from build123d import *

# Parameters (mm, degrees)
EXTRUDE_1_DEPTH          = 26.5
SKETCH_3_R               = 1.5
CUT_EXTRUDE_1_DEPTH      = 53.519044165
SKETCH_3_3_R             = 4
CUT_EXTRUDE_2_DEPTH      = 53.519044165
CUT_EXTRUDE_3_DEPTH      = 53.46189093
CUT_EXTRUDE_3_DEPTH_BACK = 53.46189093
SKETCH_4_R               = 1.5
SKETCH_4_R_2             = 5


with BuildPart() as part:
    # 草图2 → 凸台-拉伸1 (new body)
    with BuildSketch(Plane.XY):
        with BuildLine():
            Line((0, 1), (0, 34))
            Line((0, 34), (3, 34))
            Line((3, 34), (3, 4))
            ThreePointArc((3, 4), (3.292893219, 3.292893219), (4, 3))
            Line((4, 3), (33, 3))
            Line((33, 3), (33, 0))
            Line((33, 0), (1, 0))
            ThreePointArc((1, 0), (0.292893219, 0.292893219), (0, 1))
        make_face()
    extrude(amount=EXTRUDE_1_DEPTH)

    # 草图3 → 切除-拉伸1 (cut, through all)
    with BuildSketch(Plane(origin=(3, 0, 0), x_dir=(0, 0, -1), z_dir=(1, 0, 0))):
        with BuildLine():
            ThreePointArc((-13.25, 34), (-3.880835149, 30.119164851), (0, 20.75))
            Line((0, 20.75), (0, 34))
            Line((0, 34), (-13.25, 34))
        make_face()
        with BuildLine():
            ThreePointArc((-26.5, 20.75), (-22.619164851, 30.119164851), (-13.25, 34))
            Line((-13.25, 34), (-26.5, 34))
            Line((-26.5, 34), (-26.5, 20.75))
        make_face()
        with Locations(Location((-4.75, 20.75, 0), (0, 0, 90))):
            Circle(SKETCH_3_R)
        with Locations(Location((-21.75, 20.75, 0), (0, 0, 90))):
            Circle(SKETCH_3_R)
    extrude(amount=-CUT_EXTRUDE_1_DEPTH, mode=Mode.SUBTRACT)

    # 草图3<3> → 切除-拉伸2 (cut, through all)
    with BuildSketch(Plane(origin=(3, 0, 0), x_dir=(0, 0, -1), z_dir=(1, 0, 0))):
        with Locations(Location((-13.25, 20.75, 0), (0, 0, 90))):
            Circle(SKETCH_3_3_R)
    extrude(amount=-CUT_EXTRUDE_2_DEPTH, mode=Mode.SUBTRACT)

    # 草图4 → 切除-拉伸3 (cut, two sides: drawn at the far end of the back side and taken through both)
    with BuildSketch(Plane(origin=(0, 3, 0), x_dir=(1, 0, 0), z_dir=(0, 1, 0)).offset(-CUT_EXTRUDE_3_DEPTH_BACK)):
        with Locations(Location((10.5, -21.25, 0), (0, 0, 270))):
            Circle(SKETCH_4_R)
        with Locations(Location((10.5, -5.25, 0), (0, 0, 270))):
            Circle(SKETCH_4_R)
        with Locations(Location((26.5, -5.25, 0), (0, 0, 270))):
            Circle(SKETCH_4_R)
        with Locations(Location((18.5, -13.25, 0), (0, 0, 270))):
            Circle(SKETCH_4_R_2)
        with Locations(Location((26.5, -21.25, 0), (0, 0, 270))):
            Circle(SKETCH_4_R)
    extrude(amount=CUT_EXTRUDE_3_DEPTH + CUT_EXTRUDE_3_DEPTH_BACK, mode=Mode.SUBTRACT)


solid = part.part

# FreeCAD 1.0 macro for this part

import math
import FreeCAD as App
import Part
import Sketcher
from FreeCAD import Vector

doc = App.newDocument("Part")
body = doc.addObject("PartDesign::Body", "Body")

sketch1 = doc.addObject("Sketcher::SketchObject", "Sketch")
body.addObject(sketch1)
sketch1.AttachmentSupport = (doc.XY_Plane, [""])
sketch1.MapMode = "FlatFace"
sketch1.addGeometry(Part.LineSegment(Vector(0, 34, 0), Vector(0, 1, 0)), False)
sketch1.addGeometry(Part.ArcOfCircle(Part.Circle(Vector(1, 1, 0), Vector(0, 0, 1), 1), math.radians(-180), math.radians(-90)), False)
sketch1.addGeometry(Part.LineSegment(Vector(1, 0, 0), Vector(33, 0, 0)), False)
sketch1.addGeometry(Part.LineSegment(Vector(33, 0, 0), Vector(33, 3, 0)), False)
sketch1.addGeometry(Part.LineSegment(Vector(33, 3, 0), Vector(4, 3, 0)), False)
sketch1.addGeometry(Part.ArcOfCircle(Part.Circle(Vector(4, 4, 0), Vector(0, 0, 1), 1), math.radians(-180), math.radians(-90)), False)
sketch1.addGeometry(Part.LineSegment(Vector(3, 4, 0), Vector(3, 34, 0)), False)
sketch1.addGeometry(Part.LineSegment(Vector(3, 34, 0), Vector(0, 34, 0)), False)
sketch1.addConstraint(Sketcher.Constraint("Tangent", 0, 2, 1, 1))
sketch1.addConstraint(Sketcher.Constraint("Tangent", 1, 2, 2, 1))
sketch1.addConstraint(Sketcher.Constraint("Coincident", 2, 2, 3, 1))
sketch1.addConstraint(Sketcher.Constraint("Coincident", 3, 2, 4, 1))
sketch1.addConstraint(Sketcher.Constraint("Tangent", 4, 2, 5, 2))
sketch1.addConstraint(Sketcher.Constraint("Tangent", 5, 1, 6, 1))
sketch1.addConstraint(Sketcher.Constraint("Coincident", 6, 2, 7, 1))
sketch1.addConstraint(Sketcher.Constraint("Coincident", 7, 2, 0, 1))
sketch1.addConstraint(Sketcher.Constraint("Vertical", 0))
sketch1.addConstraint(Sketcher.Constraint("Horizontal", 2))
sketch1.addConstraint(Sketcher.Constraint("Vertical", 3))
sketch1.addConstraint(Sketcher.Constraint("Horizontal", 4))
sketch1.addConstraint(Sketcher.Constraint("Vertical", 6))
sketch1.addConstraint(Sketcher.Constraint("Horizontal", 7))
sketch1.addConstraint(Sketcher.Constraint("Equal", 1, 5))
sketch1.addConstraint(Sketcher.Constraint("PointOnObject", 0, 2, -2))
sketch1.addConstraint(Sketcher.Constraint("PointOnObject", 1, 2, -1))
sketch1.addConstraint(Sketcher.Constraint("Equal", 7, 3))
sketch1.addConstraint(Sketcher.Constraint("Radius", 1, 1.0))
sketch1.addConstraint(Sketcher.Constraint("DistanceX", 2, 1, 2, 2, 32.0))
sketch1.addConstraint(Sketcher.Constraint("DistanceX", 4, 2, 4, 1, 29.0))
sketch1.addConstraint(Sketcher.Constraint("DistanceY", 0, 2, 0, 1, 33.0))
pad1 = doc.addObject("PartDesign::Pad", "Pad")
body.addObject(pad1)
pad1.Profile = sketch1
pad1.Length = 26.5

sketch2 = doc.addObject("Sketcher::SketchObject", "Sketch001")
body.addObject(sketch2)
sketch2.AttachmentSupport = (doc.YZ_Plane, [""])
sketch2.MapMode = "FlatFace"
sketch2.AttachmentOffset = App.Placement(Vector(0, 0, 3), App.Rotation())
sketch2.addGeometry(Part.ArcOfCircle(Part.Circle(Vector(20.8, 13.2, 0), Vector(0, 0, 1), 13.2), math.radians(-90), math.radians(0)), False)
sketch2.addGeometry(Part.LineSegment(Vector(20.8, 0, 0), Vector(34, 0, 0)), False)
sketch2.addGeometry(Part.LineSegment(Vector(34, 0, 0), Vector(34, 13.2, 0)), False)
sketch2.addGeometry(Part.ArcOfCircle(Part.Circle(Vector(20.8, 13.3, 0), Vector(0, 0, 1), 13.2), math.radians(0), math.radians(90)), False)
sketch2.addGeometry(Part.LineSegment(Vector(34, 13.2, 0), Vector(34, 26.5, 0)), False)
sketch2.addGeometry(Part.LineSegment(Vector(34, 26.5, 0), Vector(20.8, 26.5, 0)), False)
sketch2.addGeometry(Part.Circle(Vector(20.8, 4.8, 0), Vector(0, 0, 1), 1.5), False)
sketch2.addGeometry(Part.Circle(Vector(20.8, 21.8, 0), Vector(0, 0, 1), 1.5), False)
sketch2.addConstraint(Sketcher.Constraint("Tangent", 0, 1, 1, 1))
sketch2.addConstraint(Sketcher.Constraint("Coincident", 1, 2, 2, 1))
sketch2.addConstraint(Sketcher.Constraint("Tangent", 2, 2, 0, 2))
sketch2.addConstraint(Sketcher.Constraint("Tangent", 3, 1, 4, 1))
sketch2.addConstraint(Sketcher.Constraint("Coincident", 4, 2, 5, 1))
sketch2.addConstraint(Sketcher.Constraint("Tangent", 5, 2, 3, 2))
sketch2.addConstraint(Sketcher.Constraint("Horizontal", 1))
sketch2.addConstraint(Sketcher.Constraint("Vertical", 2))
sketch2.addConstraint(Sketcher.Constraint("Vertical", 4))
sketch2.addConstraint(Sketcher.Constraint("Horizontal", 5))
sketch2.addConstraint(Sketcher.Constraint("Coincident", 3, 3, 0, 3))
sketch2.addConstraint(Sketcher.Constraint("Equal", 0, 3))
sketch2.addConstraint(Sketcher.Constraint("Equal", 6, 7))
sketch2.addConstraint(Sketcher.Constraint("PointOnObject", 0, 1, -1))
sketch2.addConstraint(Sketcher.Constraint("Vertical", 3, 3, 6, 3))
sketch2.addConstraint(Sketcher.Constraint("Vertical", 6, 3, 7, 3))
sketch2.addConstraint(Sketcher.Constraint("Diameter", 6, 3.0))
sketch2.addConstraint(Sketcher.Constraint("Radius", 0, 13.25))
sketch2.addConstraint(Sketcher.Constraint("DistanceX", -1, 1, 1, 2, 34.0))
sketch2.addConstraint(Sketcher.Constraint("DistanceY", 6, 3, 7, 3, 17.0))
sketch2.addConstraint(Sketcher.Constraint("DistanceY", 6, 3, 0, 3, 8.5))
pocket1 = doc.addObject("PartDesign::Pocket", "Pocket")
body.addObject(pocket1)
pocket1.Profile = sketch2
pocket1.Type = "ThroughAll"

sketch3 = doc.addObject("Sketcher::SketchObject", "Sketch002")
body.addObject(sketch3)
sketch3.AttachmentSupport = (doc.YZ_Plane, [""])
sketch3.MapMode = "FlatFace"
sketch3.AttachmentOffset = App.Placement(Vector(0, 0, 3), App.Rotation())
sketch3.addGeometry(Part.Circle(Vector(20.8, 13.2, 0), Vector(0, 0, 1), 4), False)
sketch3.addConstraint(Sketcher.Constraint("Diameter", 0, 8.0))
sketch3.addConstraint(Sketcher.Constraint("DistanceX", -1, 1, 0, 3, 20.75))
sketch3.addConstraint(Sketcher.Constraint("DistanceY", -1, 1, 0, 3, 13.25))
pocket2 = doc.addObject("PartDesign::Pocket", "Pocket001")
body.addObject(pocket2)
pocket2.Profile = sketch3
pocket2.Type = "ThroughAll"

sketch4 = doc.addObject("Sketcher::SketchObject", "Sketch003")
body.addObject(sketch4)
sketch4.AttachmentSupport = (doc.XZ_Plane, [""])
sketch4.MapMode = "FlatFace"
sketch4.AttachmentOffset = App.Placement(Vector(0, 0, -3), App.Rotation())
sketch4.addGeometry(Part.Circle(Vector(10.5, 21.2, 0), Vector(0, 0, 1), 1.5), False)
sketch4.addGeometry(Part.Circle(Vector(10.5, 5.2, 0), Vector(0, 0, 1), 1.5), False)
sketch4.addGeometry(Part.Circle(Vector(26.5, 5.2, 0), Vector(0, 0, 1), 1.5), False)
sketch4.addGeometry(Part.Circle(Vector(18.5, 13.2, 0), Vector(0, 0, 1), 5), False)
sketch4.addGeometry(Part.Circle(Vector(26.5, 21.2, 0), Vector(0, 0, 1), 1.5), False)
sketch4.addConstraint(Sketcher.Constraint("Equal", 0, 1))
sketch4.addConstraint(Sketcher.Constraint("Equal", 1, 2))
sketch4.addConstraint(Sketcher.Constraint("Equal", 2, 4))
sketch4.addConstraint(Sketcher.Constraint("Horizontal", 1, 3, 2, 3))
sketch4.addConstraint(Sketcher.Constraint("Horizontal", 0, 3, 4, 3))
sketch4.addConstraint(Sketcher.Constraint("Vertical", 0, 3, 1, 3))
sketch4.addConstraint(Sketcher.Constraint("Vertical", 2, 3, 4, 3))
sketch4.addConstraint(Sketcher.Constraint("Diameter", 0, 3.0))
sketch4.addConstraint(Sketcher.Constraint("Diameter", 3, 10.0))
sketch4.addConstraint(Sketcher.Constraint("DistanceY", 1, 3, 0, 3, 16.0))
sketch4.addConstraint(Sketcher.Constraint("DistanceX", 1, 3, 2, 3, 16.0))
sketch4.addConstraint(Sketcher.Constraint("DistanceX", 0, 3, 3, 3, 8.0))
sketch4.addConstraint(Sketcher.Constraint("DistanceY", 3, 3, 0, 3, 8.0))
sketch4.addConstraint(Sketcher.Constraint("DistanceX", -1, 1, 0, 3, 10.5))
sketch4.addConstraint(Sketcher.Constraint("DistanceY", -1, 1, 0, 3, 21.25))
pocket3 = doc.addObject("PartDesign::Pocket", "Pocket002")
body.addObject(pocket3)
pocket3.Profile = sketch4
pocket3.Type = "ThroughAll"
pocket3.Midplane = True

doc.recompute()
